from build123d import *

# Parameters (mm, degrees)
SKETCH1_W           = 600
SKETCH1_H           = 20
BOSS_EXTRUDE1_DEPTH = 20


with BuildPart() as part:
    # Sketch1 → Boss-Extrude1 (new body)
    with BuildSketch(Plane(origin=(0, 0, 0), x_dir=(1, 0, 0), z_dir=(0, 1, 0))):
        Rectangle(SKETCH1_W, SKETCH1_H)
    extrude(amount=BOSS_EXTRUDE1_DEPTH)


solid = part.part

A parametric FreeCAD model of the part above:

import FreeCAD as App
import Part
import Sketcher
from FreeCAD import Vector
Q = App.Units.Quantity


def add_polygon(sketch, points):
    """Adds a closed chain of lines whose ends are joined by coincident constraints."""
    first, n = sketch.GeometryCount, len(points)
    for a, b in zip(points, points[1:] + points[:1]):
        sketch.addGeometry(Part.LineSegment(App.Vector(*a, 0), App.Vector(*b, 0)), False)
    for i in range(n):
        sketch.addConstraint(Sketcher.Constraint("Coincident", first + i, 2, first + (i + 1) % n, 1))

doc = App.newDocument("Part")
body = doc.addObject("PartDesign::Body", "Body")

sketch1 = body.newObject("Sketcher::SketchObject", "Sketch")
sketch1.AttachmentSupport = (doc.getObject("XZ_Plane"), [""])
sketch1.MapMode = "FlatFace"
add_polygon(sketch1, [(-300, -10), (-300, 10), (300, 10), (300, -10)])
sketch1.addConstraint([
    Sketcher.Constraint("Vertical", 0),
    Sketcher.Constraint("Horizontal", 1),
    Sketcher.Constraint("Vertical", 2),
    Sketcher.Constraint("Horizontal", 3),
    Sketcher.Constraint("Symmetric", 0, 2, 2, 2, -1, 1),
    Sketcher.Constraint("DistanceX", 1, 1, 1, 2, Q("600 mm")),
    Sketcher.Constraint("DistanceY", 0, 1, 0, 2, Q("20 mm")),
])
pad1 = body.newObject("PartDesign::Pad", "Pad")
pad1.Profile = sketch1
pad1.Length = 20
pad1.Reversed = True

doc.recompute()
